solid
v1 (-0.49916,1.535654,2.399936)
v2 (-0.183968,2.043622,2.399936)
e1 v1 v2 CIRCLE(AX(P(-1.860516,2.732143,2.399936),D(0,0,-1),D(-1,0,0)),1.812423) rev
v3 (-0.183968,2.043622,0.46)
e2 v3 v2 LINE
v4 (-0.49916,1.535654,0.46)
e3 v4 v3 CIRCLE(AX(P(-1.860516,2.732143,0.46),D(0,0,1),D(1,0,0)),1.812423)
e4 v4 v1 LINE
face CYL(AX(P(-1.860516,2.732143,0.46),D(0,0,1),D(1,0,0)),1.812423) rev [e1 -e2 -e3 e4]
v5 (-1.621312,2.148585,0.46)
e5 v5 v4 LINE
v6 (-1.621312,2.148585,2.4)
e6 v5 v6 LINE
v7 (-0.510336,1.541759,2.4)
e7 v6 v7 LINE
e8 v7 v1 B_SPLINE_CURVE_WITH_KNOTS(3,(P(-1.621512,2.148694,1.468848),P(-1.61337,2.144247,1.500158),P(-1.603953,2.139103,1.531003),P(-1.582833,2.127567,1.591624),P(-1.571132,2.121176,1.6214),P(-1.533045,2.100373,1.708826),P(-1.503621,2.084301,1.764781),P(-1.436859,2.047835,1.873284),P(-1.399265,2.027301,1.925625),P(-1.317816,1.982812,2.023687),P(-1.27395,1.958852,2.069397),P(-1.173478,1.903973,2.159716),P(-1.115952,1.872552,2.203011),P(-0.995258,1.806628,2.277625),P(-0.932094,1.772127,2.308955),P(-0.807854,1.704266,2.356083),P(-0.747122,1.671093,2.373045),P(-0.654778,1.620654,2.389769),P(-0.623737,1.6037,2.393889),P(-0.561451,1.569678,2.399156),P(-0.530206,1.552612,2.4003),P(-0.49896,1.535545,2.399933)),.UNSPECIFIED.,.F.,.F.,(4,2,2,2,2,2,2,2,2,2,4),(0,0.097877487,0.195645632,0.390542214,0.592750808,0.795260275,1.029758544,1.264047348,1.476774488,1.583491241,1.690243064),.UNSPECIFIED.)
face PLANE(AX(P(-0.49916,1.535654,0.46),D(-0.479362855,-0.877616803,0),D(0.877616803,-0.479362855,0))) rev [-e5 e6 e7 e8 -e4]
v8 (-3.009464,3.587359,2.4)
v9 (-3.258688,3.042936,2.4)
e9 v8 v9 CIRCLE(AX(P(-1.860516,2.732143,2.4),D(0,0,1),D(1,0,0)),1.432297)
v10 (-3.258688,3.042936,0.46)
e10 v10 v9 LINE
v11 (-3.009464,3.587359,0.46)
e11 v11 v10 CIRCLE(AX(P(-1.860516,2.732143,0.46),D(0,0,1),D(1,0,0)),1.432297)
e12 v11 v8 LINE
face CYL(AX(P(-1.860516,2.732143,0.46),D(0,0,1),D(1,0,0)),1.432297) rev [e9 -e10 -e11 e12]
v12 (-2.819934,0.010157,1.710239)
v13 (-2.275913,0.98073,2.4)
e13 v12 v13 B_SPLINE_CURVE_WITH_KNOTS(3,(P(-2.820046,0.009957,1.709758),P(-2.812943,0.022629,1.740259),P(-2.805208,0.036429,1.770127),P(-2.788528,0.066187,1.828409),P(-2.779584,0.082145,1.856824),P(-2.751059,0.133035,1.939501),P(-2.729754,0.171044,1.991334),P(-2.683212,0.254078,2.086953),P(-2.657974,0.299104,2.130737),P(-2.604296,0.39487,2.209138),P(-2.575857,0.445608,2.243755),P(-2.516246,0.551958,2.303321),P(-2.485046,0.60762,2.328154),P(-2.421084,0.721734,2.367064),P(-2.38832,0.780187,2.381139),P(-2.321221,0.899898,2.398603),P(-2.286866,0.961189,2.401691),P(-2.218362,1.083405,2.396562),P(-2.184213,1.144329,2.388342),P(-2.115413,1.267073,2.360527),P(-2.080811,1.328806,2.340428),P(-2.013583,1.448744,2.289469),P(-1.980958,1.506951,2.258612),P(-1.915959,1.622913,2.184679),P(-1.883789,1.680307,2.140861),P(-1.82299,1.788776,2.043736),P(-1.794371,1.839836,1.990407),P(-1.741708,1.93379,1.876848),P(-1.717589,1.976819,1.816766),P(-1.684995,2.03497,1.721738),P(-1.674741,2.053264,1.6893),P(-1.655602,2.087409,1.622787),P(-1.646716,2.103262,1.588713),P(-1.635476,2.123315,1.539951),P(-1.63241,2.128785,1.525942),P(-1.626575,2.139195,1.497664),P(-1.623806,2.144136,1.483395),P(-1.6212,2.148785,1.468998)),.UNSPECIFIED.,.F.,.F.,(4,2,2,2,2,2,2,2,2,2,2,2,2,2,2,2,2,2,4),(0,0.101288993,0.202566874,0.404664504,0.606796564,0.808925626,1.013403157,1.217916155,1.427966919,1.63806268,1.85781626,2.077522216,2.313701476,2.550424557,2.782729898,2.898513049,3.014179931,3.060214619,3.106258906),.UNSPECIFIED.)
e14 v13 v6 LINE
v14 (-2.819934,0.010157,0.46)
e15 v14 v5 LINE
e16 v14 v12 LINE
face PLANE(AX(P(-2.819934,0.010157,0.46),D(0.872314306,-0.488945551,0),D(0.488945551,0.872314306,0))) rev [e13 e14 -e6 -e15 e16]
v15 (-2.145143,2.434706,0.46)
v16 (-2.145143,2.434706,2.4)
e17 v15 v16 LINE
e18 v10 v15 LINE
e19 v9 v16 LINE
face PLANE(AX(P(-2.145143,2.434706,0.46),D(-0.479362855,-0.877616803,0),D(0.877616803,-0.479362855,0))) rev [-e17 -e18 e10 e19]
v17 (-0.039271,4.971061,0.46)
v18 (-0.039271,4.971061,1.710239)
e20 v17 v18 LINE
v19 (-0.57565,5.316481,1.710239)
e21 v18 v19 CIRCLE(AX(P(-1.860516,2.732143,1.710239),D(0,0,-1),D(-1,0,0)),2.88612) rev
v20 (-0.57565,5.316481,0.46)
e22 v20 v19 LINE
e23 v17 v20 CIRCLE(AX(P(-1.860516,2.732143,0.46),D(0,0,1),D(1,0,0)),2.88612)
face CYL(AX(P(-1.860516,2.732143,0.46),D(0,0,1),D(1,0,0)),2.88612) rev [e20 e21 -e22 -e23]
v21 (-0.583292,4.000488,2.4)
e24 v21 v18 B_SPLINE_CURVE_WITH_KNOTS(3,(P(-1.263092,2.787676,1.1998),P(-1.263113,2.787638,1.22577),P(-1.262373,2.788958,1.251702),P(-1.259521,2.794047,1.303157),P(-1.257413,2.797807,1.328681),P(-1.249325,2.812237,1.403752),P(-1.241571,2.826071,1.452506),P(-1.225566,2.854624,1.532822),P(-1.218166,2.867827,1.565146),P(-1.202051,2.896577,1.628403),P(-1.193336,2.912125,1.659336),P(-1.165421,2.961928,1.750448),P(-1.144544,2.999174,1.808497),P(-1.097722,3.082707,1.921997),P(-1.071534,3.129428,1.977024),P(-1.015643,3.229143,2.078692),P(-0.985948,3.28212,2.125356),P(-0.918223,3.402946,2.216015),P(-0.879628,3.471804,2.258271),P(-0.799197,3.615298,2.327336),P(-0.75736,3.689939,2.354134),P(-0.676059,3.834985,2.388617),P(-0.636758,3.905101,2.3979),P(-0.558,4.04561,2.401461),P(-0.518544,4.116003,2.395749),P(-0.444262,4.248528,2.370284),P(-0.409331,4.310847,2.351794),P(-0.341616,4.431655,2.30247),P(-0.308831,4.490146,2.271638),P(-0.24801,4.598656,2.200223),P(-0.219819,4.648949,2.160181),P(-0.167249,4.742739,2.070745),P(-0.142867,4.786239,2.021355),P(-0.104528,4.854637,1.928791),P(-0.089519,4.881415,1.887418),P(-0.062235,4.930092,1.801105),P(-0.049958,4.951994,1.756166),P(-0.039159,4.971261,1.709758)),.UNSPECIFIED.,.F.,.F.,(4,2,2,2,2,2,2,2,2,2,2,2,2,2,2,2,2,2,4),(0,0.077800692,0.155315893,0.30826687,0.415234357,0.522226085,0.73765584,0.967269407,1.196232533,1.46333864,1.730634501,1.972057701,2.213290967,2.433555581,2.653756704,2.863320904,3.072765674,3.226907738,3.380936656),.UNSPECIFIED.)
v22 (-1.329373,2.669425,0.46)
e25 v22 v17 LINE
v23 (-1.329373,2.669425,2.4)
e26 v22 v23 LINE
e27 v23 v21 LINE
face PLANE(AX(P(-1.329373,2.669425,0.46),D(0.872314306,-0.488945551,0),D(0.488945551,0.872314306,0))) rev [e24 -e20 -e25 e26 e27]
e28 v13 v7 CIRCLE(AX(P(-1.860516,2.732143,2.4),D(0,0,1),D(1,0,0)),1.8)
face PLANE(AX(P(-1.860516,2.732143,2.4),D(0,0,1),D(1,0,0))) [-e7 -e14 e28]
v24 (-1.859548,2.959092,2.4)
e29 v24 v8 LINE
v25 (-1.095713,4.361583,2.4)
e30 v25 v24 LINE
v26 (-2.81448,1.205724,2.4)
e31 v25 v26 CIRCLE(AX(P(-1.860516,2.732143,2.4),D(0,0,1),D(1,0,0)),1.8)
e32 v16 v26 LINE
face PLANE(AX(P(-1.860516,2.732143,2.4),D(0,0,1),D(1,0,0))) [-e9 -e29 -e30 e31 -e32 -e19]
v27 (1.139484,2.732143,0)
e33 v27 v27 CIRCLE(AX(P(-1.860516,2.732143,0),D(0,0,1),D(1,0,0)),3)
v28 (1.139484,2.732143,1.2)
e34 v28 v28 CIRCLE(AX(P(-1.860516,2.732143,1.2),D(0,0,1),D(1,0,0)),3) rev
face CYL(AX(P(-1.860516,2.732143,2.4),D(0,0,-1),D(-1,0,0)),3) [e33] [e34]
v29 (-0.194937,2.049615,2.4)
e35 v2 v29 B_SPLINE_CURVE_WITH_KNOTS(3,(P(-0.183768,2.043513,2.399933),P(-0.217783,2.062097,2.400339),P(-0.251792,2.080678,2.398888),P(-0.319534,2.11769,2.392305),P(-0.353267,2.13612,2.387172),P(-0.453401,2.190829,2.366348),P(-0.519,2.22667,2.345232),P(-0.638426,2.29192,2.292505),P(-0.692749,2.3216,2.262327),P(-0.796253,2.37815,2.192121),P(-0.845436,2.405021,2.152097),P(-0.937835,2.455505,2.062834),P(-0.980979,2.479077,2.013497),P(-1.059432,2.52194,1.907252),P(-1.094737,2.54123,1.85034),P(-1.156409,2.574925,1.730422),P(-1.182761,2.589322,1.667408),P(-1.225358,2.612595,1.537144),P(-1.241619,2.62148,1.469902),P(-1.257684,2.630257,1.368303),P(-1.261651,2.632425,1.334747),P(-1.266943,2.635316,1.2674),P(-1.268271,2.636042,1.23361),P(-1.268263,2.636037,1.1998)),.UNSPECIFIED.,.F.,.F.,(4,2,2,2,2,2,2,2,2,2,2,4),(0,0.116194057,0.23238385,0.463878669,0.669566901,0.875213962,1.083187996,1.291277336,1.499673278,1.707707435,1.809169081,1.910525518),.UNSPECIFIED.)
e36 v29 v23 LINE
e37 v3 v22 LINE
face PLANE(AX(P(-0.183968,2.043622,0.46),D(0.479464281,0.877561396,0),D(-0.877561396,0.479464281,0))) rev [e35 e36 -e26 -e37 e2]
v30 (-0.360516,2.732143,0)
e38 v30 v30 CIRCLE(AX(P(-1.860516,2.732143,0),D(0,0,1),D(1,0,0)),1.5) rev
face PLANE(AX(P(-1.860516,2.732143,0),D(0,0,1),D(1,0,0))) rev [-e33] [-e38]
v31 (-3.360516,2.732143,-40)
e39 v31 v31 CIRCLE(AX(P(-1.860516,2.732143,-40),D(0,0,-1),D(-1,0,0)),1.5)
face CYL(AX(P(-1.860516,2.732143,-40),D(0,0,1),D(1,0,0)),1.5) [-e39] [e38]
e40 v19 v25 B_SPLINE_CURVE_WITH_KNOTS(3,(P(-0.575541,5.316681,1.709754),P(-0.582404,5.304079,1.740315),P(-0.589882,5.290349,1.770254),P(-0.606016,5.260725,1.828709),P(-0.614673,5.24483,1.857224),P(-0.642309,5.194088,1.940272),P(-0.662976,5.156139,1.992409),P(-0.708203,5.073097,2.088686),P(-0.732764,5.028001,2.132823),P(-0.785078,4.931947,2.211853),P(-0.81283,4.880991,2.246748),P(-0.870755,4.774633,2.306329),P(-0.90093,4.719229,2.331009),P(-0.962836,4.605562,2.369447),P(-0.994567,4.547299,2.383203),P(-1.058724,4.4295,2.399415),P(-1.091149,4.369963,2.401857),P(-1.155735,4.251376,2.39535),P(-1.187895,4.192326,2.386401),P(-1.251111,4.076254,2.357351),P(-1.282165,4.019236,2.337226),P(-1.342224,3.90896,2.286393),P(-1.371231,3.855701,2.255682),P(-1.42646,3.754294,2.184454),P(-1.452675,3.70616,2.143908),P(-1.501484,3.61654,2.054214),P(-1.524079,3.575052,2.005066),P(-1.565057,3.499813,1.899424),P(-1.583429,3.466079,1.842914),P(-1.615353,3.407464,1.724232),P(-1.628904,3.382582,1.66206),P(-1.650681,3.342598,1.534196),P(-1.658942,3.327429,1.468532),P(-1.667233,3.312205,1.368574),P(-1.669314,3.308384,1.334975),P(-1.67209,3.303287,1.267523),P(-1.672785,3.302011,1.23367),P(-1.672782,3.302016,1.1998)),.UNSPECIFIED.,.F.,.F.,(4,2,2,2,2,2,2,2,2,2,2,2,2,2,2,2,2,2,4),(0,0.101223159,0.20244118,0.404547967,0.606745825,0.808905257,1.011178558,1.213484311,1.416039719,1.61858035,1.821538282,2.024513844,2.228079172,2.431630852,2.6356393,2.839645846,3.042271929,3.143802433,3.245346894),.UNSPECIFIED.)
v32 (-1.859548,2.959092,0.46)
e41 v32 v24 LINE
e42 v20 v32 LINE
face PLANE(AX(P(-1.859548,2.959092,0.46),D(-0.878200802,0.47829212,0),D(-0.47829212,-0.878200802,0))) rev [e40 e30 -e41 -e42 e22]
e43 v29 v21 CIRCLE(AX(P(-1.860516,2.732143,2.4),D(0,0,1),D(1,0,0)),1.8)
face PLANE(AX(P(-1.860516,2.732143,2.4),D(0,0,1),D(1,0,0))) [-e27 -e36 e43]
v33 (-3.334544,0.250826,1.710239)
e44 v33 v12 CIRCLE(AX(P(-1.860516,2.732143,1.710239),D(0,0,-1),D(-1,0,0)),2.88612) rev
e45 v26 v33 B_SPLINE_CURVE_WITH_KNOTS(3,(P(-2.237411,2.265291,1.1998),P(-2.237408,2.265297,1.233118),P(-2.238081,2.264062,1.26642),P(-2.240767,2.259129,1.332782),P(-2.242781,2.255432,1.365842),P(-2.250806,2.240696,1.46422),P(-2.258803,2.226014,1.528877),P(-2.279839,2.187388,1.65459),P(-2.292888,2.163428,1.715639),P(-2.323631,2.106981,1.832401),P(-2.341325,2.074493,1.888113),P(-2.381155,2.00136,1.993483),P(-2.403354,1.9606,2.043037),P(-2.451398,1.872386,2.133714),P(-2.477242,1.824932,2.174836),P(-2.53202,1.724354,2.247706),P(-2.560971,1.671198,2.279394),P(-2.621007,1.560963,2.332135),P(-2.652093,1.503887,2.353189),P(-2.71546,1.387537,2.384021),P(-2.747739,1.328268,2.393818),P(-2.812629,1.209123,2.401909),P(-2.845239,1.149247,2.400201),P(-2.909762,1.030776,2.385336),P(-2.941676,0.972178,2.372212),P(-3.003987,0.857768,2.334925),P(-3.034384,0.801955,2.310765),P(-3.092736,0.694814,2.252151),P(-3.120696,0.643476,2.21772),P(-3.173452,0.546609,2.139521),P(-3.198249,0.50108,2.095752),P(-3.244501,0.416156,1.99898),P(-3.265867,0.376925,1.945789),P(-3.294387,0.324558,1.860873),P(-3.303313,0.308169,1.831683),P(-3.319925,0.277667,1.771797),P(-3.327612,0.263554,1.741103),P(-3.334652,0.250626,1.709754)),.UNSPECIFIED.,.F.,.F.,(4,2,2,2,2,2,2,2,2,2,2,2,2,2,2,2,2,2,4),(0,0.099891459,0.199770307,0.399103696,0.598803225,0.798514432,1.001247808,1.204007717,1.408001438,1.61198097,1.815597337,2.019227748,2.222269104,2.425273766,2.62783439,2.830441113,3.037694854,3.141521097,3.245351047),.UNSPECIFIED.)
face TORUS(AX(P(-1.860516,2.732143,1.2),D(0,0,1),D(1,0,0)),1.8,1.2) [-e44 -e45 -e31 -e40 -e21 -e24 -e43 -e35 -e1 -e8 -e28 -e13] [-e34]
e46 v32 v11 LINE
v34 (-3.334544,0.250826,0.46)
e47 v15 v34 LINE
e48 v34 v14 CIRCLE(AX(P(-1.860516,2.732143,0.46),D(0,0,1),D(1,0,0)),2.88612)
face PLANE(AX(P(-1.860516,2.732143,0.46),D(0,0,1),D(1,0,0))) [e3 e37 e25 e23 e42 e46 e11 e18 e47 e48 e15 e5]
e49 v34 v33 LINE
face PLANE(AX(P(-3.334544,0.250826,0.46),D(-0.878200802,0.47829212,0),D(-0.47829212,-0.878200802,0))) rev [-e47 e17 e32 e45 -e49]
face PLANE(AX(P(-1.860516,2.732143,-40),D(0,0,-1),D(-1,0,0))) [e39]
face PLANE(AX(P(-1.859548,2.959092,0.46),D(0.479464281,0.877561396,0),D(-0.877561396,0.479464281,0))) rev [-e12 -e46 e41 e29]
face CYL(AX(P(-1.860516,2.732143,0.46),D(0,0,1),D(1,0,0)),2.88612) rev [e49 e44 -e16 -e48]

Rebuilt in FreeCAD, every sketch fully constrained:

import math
import FreeCAD as App
import Part
import Sketcher


def edges_at(feature, points):
    """Names of the edges that pass closest to the given points."""
    edges = feature.Shape.Edges
    near = lambda p: min(range(len(edges)), key=lambda i: edges[i].distToShape(Part.Vertex(*p))[0])
    return sorted({f"Edge{near(p) + 1}" for p in points})

doc = App.newDocument("Part")
body = doc.addObject("PartDesign::Body", "Body")

sketch1 = doc.addObject("Sketcher::SketchObject", "Sketch")
body.addObject(sketch1)
sketch1.AttachmentSupport = (doc.XY_Plane, [""])
sketch1.MapMode = "FlatFace"
sketch1.addGeometry(Part.Circle(App.Vector(-1.860516, 2.732143, 0), App.Vector(0, 0, 1), 3), False)
sketch1.addConstraint([
    Sketcher.Constraint("Diameter", 0, 6.0),
    Sketcher.Constraint("DistanceX", 0, 3, -1, 1, 1.860516),
    Sketcher.Constraint("DistanceY", -1, 1, 0, 3, 2.732143),
])
pad1 = doc.addObject("PartDesign::Pad", "Pad")
body.addObject(pad1)
pad1.Profile = sketch1
pad1.Length = 2.4

sketch2 = doc.addObject("Sketcher::SketchObject", "Sketch001")
body.addObject(sketch2)
sketch2.AttachmentSupport = (doc.XY_Plane, [""])
sketch2.MapMode = "FlatFace"
sketch2.addGeometry(Part.Circle(App.Vector(-1.860516, 2.732143, 0), App.Vector(0, 0, 1), 1.5), False)
sketch2.addConstraint([
    Sketcher.Constraint("Diameter", 0, 3.0),
    Sketcher.Constraint("DistanceX", 0, 3, -1, 1, 1.860516),
    Sketcher.Constraint("DistanceY", -1, 1, 0, 3, 2.732143),
])
pad2 = doc.addObject("PartDesign::Pad", "Pad001")
body.addObject(pad2)
pad2.Profile = sketch2
pad2.Length = 40
pad2.Reversed = True
doc.recompute()

fillet = doc.addObject("PartDesign::Fillet", "Fillet")
body.addObject(fillet)
fillet.Base = (pad2, edges_at(pad2, [(-4.861, 2.732, 2.4)]))
fillet.Radius = 1.2

sketch3 = doc.addObject("Sketcher::SketchObject", "Sketch002")
body.addObject(sketch3)
sketch3.AttachmentSupport = (doc.XY_Plane, [""])
sketch3.MapMode = "FlatFace"
sketch3.AttachmentOffset = App.Placement(App.Vector(0, 0, 2.4), App.Rotation())
sketch3.addGeometry([
    Part.LineSegment(App.Vector(-0.57565, 5.316481, 0), App.Vector(-1.859548, 2.959092, 0)),
    Part.LineSegment(App.Vector(-1.859548, 2.959092, 0), App.Vector(-3.009464, 3.587359, 0)),
    Part.ArcOfCircle(Part.Circle(App.Vector(-1.860516, 2.732143, 0), App.Vector(0, 0, 1), 1.432297), math.radians(143.337927), math.radians(167.467762)),
    Part.LineSegment(App.Vector(-3.258688, 3.042936, 0), App.Vector(-2.145143, 2.434706, 0)),
    Part.LineSegment(App.Vector(-2.145143, 2.434706, 0), App.Vector(-3.334544, 0.250826, 0)),
    Part.ArcOfCircle(Part.Circle(App.Vector(-1.860516, 2.732143, 0), App.Vector(0, 0, 1), 2.88612), math.radians(-120.712451), math.radians(-109.416009)),
    Part.LineSegment(App.Vector(-2.819934, 0.010157, 0), App.Vector(-1.621312, 2.148585, 0)),
    Part.LineSegment(App.Vector(-1.621312, 2.148585, 0), App.Vector(-0.49916, 1.535654, 0)),
    Part.ArcOfCircle(Part.Circle(App.Vector(-1.860516, 2.732143, 0), App.Vector(0, 0, 1), 1.812423), math.radians(-41.312055), math.radians(-22.326858)),
    Part.LineSegment(App.Vector(-0.183968, 2.043622, 0), App.Vector(-1.329373, 2.669425, 0)),
    Part.LineSegment(App.Vector(-1.329373, 2.669425, 0), App.Vector(-0.039271, 4.971061, 0)),
    Part.ArcOfCircle(Part.Circle(App.Vector(-1.860516, 2.732143, 0), App.Vector(0, 0, 1), 2.88612), math.radians(50.87341), math.radians(63.564618)),
], False)
sketch3.addConstraint([
    Sketcher.Constraint("Coincident", 0, 2, 1, 1),
    Sketcher.Constraint("Coincident", 1, 2, 2, 1),
    Sketcher.Constraint("Coincident", 2, 2, 3, 1),
    Sketcher.Constraint("Coincident", 3, 2, 4, 1),
    Sketcher.Constraint("Coincident", 4, 2, 5, 1),
    Sketcher.Constraint("Coincident", 5, 2, 6, 1),
    Sketcher.Constraint("Coincident", 6, 2, 7, 1),
    Sketcher.Constraint("Coincident", 7, 2, 8, 1),
    Sketcher.Constraint("Coincident", 8, 2, 9, 1),
    Sketcher.Constraint("Coincident", 9, 2, 10, 1),
    Sketcher.Constraint("Coincident", 10, 2, 11, 1),
    Sketcher.Constraint("Coincident", 11, 2, 0, 1),
    Sketcher.Constraint("Coincident", 5, 3, 2, 3),
    Sketcher.Constraint("Coincident", 8, 3, 2, 3),
    Sketcher.Constraint("Coincident", 11, 3, 2, 3),
    Sketcher.Constraint("Radius", 5, 2.88612),
    Sketcher.Constraint("Radius", 11, 2.88612),
    Sketcher.Constraint("Radius", 2, 1.432297),
    Sketcher.Constraint("Radius", 8, 1.812423),
    Sketcher.Constraint("DistanceX", 4, 2, 3, 2, 1.189401),
    Sketcher.Constraint("DistanceX", 9, 2, 10, 2, 1.290102),
    Sketcher.Constraint("DistanceX", 0, 2, 11, 2, 1.283899),
    Sketcher.Constraint("Distance", 0, 2.68434),
    Sketcher.Constraint("Distance", 3, 1.268828),
    Sketcher.Constraint("Distance", 6, 2.451442),
    Sketcher.Constraint("Distance", 10, 2.638539),
    Sketcher.Constraint("DistanceX", 0, 2, -1, 1, 1.859548),
    Sketcher.Constraint("DistanceY", -1, 1, 0, 2, 2.959092),
    Sketcher.Constraint("DistanceY", -1, 1, 1, 2, 3.587359),
    Sketcher.Constraint("DistanceX", 7, 2, -1, 1, 0.49916),
    Sketcher.Constraint("DistanceY", -1, 1, 8, 2, 2.043622),
    Sketcher.Constraint("DistanceX", 10, 2, -1, 1, 0.039271),
    Sketcher.Constraint("DistanceY", -1, 1, 10, 2, 4.971061),
    Sketcher.Constraint("DistanceX", 2, 2, 0, 2, 1.39914),
    Sketcher.Constraint("DistanceY", 4, 2, 3, 2, 2.18388),
    Sketcher.Constraint("DistanceX", 4, 2, 5, 2, 0.51461),
    Sketcher.Constraint("DistanceX", 3, 2, 6, 2, 0.523831),
])
pocket1 = doc.addObject("PartDesign::Pocket", "Pocket")
body.addObject(pocket1)
pocket1.Profile = sketch3
pocket1.Length = 1.94

doc.recompute()
